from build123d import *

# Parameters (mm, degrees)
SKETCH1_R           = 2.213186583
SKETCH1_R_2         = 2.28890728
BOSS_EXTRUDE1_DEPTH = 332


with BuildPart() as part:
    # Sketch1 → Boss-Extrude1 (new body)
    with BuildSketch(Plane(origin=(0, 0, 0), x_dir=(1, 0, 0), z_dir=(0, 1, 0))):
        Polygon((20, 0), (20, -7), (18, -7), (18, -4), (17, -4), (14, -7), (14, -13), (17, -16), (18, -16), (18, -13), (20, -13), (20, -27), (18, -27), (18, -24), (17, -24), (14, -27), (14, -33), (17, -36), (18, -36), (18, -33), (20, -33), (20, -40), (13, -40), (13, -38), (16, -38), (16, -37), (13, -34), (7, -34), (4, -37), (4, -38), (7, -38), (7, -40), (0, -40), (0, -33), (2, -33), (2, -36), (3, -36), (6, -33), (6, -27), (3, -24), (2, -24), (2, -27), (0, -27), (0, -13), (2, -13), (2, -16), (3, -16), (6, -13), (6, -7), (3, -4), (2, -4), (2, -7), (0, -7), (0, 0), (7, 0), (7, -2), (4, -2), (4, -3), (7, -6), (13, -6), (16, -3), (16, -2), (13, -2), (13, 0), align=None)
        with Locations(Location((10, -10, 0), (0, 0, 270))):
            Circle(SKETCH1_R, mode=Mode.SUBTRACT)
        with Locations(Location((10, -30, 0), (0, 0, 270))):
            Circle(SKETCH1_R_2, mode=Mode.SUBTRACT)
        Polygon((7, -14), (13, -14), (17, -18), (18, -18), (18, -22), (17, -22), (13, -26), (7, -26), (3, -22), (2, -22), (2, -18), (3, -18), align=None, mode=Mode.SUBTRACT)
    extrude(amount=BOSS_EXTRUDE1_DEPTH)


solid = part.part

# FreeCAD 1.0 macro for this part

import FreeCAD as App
import Part
import Sketcher
from FreeCAD import Vector


def add_polygon(sketch, points):
    """Adds a closed chain of lines whose ends are joined by coincident constraints."""
    first, n = sketch.GeometryCount, len(points)
    for a, b in zip(points, points[1:] + points[:1]):
        sketch.addGeometry(Part.LineSegment(App.Vector(*a, 0), App.Vector(*b, 0)), False)
    for i in range(n):
        sketch.addConstraint(Sketcher.Constraint("Coincident", first + i, 2, first + (i + 1) % n, 1))

doc = App.newDocument("Part")
params = doc.addObject("Spreadsheet::Sheet", "Params")
for row, (alias, value) in enumerate([
    ("sketch1_width", "7 mm"),
    ("sketch1_width2", "3 mm"),
    ("sketch1_width3", "6 mm"),
    ("sketch1_width4", "2 mm"),
    ("sketch1_width5", "1 mm"),
    ("pad1_length", "332 mm"),
], start=1):
    params.set(f"A{row}", alias)
    params.set(f"B{row}", "=" + value)
    params.setAlias(f"B{row}", alias)

body = doc.addObject("PartDesign::Body", "Body")

# Sketch on XZ plane
sketch1 = body.newObject("Sketcher::SketchObject", "Sketch")
sketch1.AttachmentSupport = (doc.getObject("XZ_Plane"), [""])
sketch1.MapMode = "FlatFace"
add_polygon(sketch1, [(20, 7), (20, 0), (13, 0), (13, 2), (16, 2), (16, 3), (13, 6), (7, 6), (4, 3), (4, 2), (7, 2), (7, 0), (0, 0), (0, 7), (2, 7), (2, 4), (3, 4), (6, 7), (6, 13), (3, 16), (2, 16), (2, 13), (0, 13), (0, 27), (2, 27), (2, 24), (3, 24), (6, 27), (6, 33), (3, 36), (2, 36), (2, 33), (0, 33), (0, 40), (7, 40), (7, 38), (4, 38), (4, 37), (7, 34), (13, 34), (16, 37), (16, 38), (13, 38), (13, 40), (20, 40), (20, 33), (18, 33), (18, 36), (17, 36), (14, 33), (14, 27), (17, 24), (18, 24), (18, 27), (20, 27), (20, 13), (18, 13), (18, 16), (17, 16), (14, 13), (14, 7), (17, 4), (18, 4), (18, 7)])  # lines 0-63
sketch1.addGeometry(Part.Circle(Vector(10, 30, 0), Vector(0, 0, 1), 2.3), False)  # 64
add_polygon(sketch1, [(7, 14), (13, 14), (17, 18), (18, 18), (18, 22), (17, 22), (13, 26), (7, 26), (3, 22), (2, 22), (2, 18), (3, 18)])  # lines 65-76
sketch1.addGeometry(Part.Circle(Vector(10, 10, 0), Vector(0, 0, 1), 2.2), False)  # 77
sketch1.addConstraint(Sketcher.Constraint("Vertical", 0))
sketch1.addConstraint(Sketcher.Constraint("Horizontal", 1))
sketch1.addConstraint(Sketcher.Constraint("Vertical", 2))
sketch1.addConstraint(Sketcher.Constraint("Horizontal", 3))
sketch1.addConstraint(Sketcher.Constraint("Vertical", 4))
sketch1.addConstraint(Sketcher.Constraint("Horizontal", 6))
sketch1.addConstraint(Sketcher.Constraint("Vertical", 8))
sketch1.addConstraint(Sketcher.Constraint("Horizontal", 9))
sketch1.addConstraint(Sketcher.Constraint("Vertical", 10))
sketch1.addConstraint(Sketcher.Constraint("Horizontal", 11))
sketch1.addConstraint(Sketcher.Constraint("Vertical", 12))
sketch1.addConstraint(Sketcher.Constraint("Horizontal", 13))
sketch1.addConstraint(Sketcher.Constraint("Vertical", 14))
sketch1.addConstraint(Sketcher.Constraint("Horizontal", 15))
sketch1.addConstraint(Sketcher.Constraint("Vertical", 17))
sketch1.addConstraint(Sketcher.Constraint("Horizontal", 19))
sketch1.addConstraint(Sketcher.Constraint("Vertical", 20))
sketch1.addConstraint(Sketcher.Constraint("Horizontal", 21))
sketch1.addConstraint(Sketcher.Constraint("Vertical", 22))
sketch1.addConstraint(Sketcher.Constraint("Horizontal", 23))
sketch1.addConstraint(Sketcher.Constraint("Vertical", 24))
sketch1.addConstraint(Sketcher.Constraint("Horizontal", 25))
sketch1.addConstraint(Sketcher.Constraint("Vertical", 27))
sketch1.addConstraint(Sketcher.Constraint("Horizontal", 29))
sketch1.addConstraint(Sketcher.Constraint("Vertical", 30))
sketch1.addConstraint(Sketcher.Constraint("Horizontal", 31))
sketch1.addConstraint(Sketcher.Constraint("Vertical", 32))
sketch1.addConstraint(Sketcher.Constraint("Horizontal", 33))
sketch1.addConstraint(Sketcher.Constraint("Vertical", 34))
sketch1.addConstraint(Sketcher.Constraint("Horizontal", 35))
sketch1.addConstraint(Sketcher.Constraint("Vertical", 36))
sketch1.addConstraint(Sketcher.Constraint("Horizontal", 38))
sketch1.addConstraint(Sketcher.Constraint("Vertical", 40))
sketch1.addConstraint(Sketcher.Constraint("Horizontal", 41))
sketch1.addConstraint(Sketcher.Constraint("Vertical", 42))
sketch1.addConstraint(Sketcher.Constraint("Horizontal", 43))
sketch1.addConstraint(Sketcher.Constraint("Vertical", 44))
sketch1.addConstraint(Sketcher.Constraint("Horizontal", 45))
sketch1.addConstraint(Sketcher.Constraint("Vertical", 46))
sketch1.addConstraint(Sketcher.Constraint("Horizontal", 47))
sketch1.addConstraint(Sketcher.Constraint("Vertical", 49))
sketch1.addConstraint(Sketcher.Constraint("Horizontal", 51))
sketch1.addConstraint(Sketcher.Constraint("Vertical", 52))
sketch1.addConstraint(Sketcher.Constraint("Horizontal", 53))
sketch1.addConstraint(Sketcher.Constraint("Vertical", 54))
sketch1.addConstraint(Sketcher.Constraint("Horizontal", 55))
sketch1.addConstraint(Sketcher.Constraint("Vertical", 56))
sketch1.addConstraint(Sketcher.Constraint("Horizontal", 57))
sketch1.addConstraint(Sketcher.Constraint("Vertical", 59))
sketch1.addConstraint(Sketcher.Constraint("Horizontal", 61))
sketch1.addConstraint(Sketcher.Constraint("Vertical", 62))
sketch1.addConstraint(Sketcher.Constraint("Horizontal", 63))
sketch1.addConstraint(Sketcher.Constraint("Horizontal", 65))
sketch1.addConstraint(Sketcher.Constraint("Horizontal", 67))
sketch1.addConstraint(Sketcher.Constraint("Vertical", 68))
sketch1.addConstraint(Sketcher.Constraint("Horizontal", 69))
sketch1.addConstraint(Sketcher.Constraint("Horizontal", 71))
sketch1.addConstraint(Sketcher.Constraint("Horizontal", 73))
sketch1.addConstraint(Sketcher.Constraint("Vertical", 74))
sketch1.addConstraint(Sketcher.Constraint("Horizontal", 75))
sketch1.addConstraint(Sketcher.Constraint("Coincident", 11, 2, -1, 1))
sketch1.addConstraint(Sketcher.Constraint("PointOnObject", 0, 2, -1))
sketch1.addConstraint(Sketcher.Constraint("PointOnObject", 21, 2, -2))
sketch1.addConstraint(Sketcher.Constraint("PointOnObject", 31, 2, -2))
sketch1.addConstraint(Sketcher.Constraint("Perpendicular", 5, 7))
sketch1.addConstraint(Sketcher.Constraint("Parallel", 7, 16))
sketch1.addConstraint(Sketcher.Constraint("Perpendicular", 16, 18))
sketch1.addConstraint(Sketcher.Constraint("Perpendicular", 18, 26))
sketch1.addConstraint(Sketcher.Constraint("Perpendicular", 26, 28))
sketch1.addConstraint(Sketcher.Constraint("Parallel", 28, 37))
sketch1.addConstraint(Sketcher.Constraint("Perpendicular", 37, 39))
sketch1.addConstraint(Sketcher.Constraint("Parallel", 39, 48))
sketch1.addConstraint(Sketcher.Constraint("Perpendicular", 48, 50))
sketch1.addConstraint(Sketcher.Constraint("Perpendicular", 50, 58))
sketch1.addConstraint(Sketcher.Constraint("Perpendicular", 58, 60))
sketch1.addConstraint(Sketcher.Constraint("Perpendicular", 60, 66))
sketch1.addConstraint(Sketcher.Constraint("Perpendicular", 66, 70))
sketch1.addConstraint(Sketcher.Constraint("Perpendicular", 70, 72))
sketch1.addConstraint(Sketcher.Constraint("Perpendicular", 72, 76))
sketch1.addConstraint(Sketcher.Constraint("Horizontal", 4, 2, 7, 2))
sketch1.addConstraint(Sketcher.Constraint("Horizontal", 3, 2, 8, 2))
sketch1.addConstraint(Sketcher.Constraint("Horizontal", 13, 2, 16, 2))
sketch1.addConstraint(Sketcher.Constraint("Horizontal", 17, 2, 20, 2))
sketch1.addConstraint(Sketcher.Constraint("Horizontal", 23, 2, 26, 2))
sketch1.addConstraint(Sketcher.Constraint("Horizontal", 27, 2, 30, 2))
sketch1.addConstraint(Sketcher.Constraint("Horizontal", 36, 2, 39, 2))
sketch1.addConstraint(Sketcher.Constraint("Horizontal", 35, 2, 40, 2))
sketch1.addConstraint(Sketcher.Constraint("Horizontal", 33, 2, 42, 2))
sketch1.addConstraint(Sketcher.Constraint("Horizontal", 31, 2, 44, 2))
sketch1.addConstraint(Sketcher.Constraint("Horizontal", 29, 2, 46, 2))
sketch1.addConstraint(Sketcher.Constraint("Horizontal", 45, 2, 48, 2))
sketch1.addConstraint(Sketcher.Constraint("Horizontal", 26, 2, 49, 2))
sketch1.addConstraint(Sketcher.Constraint("Horizontal", 25, 2, 50, 2))
sketch1.addConstraint(Sketcher.Constraint("Horizontal", 49, 2, 52, 2))
sketch1.addConstraint(Sketcher.Constraint("Horizontal", 21, 2, 54, 2))
sketch1.addConstraint(Sketcher.Constraint("Horizontal", 19, 2, 56, 2))
sketch1.addConstraint(Sketcher.Constraint("Horizontal", 55, 2, 58, 2))
sketch1.addConstraint(Sketcher.Constraint("Horizontal", 16, 2, 59, 2))
sketch1.addConstraint(Sketcher.Constraint("Horizontal", 15, 2, 60, 2))
sketch1.addConstraint(Sketcher.Constraint("Horizontal", 59, 2, 62, 2))
sketch1.addConstraint(Sketcher.Constraint("Horizontal", 69, 2, 72, 2))
sketch1.addConstraint(Sketcher.Constraint("Horizontal", 67, 2, 74, 2))
sketch1.addConstraint(Sketcher.Constraint("Vertical", 64, 3, 77, 3))
sketch1.addConstraint(Sketcher.Constraint("Vertical", 2, 2, 5, 2))
sketch1.addConstraint(Sketcher.Constraint("Vertical", 6, 2, 9, 2))
sketch1.addConstraint(Sketcher.Constraint("Vertical", 15, 2, 18, 2))
sketch1.addConstraint(Sketcher.Constraint("Vertical", 14, 2, 19, 2))
sketch1.addConstraint(Sketcher.Constraint("Vertical", 20, 2, 23, 2))
sketch1.addConstraint(Sketcher.Constraint("Vertical", 18, 2, 25, 2))
sketch1.addConstraint(Sketcher.Constraint("Vertical", 17, 2, 26, 2))
sketch1.addConstraint(Sketcher.Constraint("Vertical", 25, 2, 28, 2))
sketch1.addConstraint(Sketcher.Constraint("Vertical", 24, 2, 29, 2))
sketch1.addConstraint(Sketcher.Constraint("Vertical", 10, 2, 33, 2))
sketch1.addConstraint(Sketcher.Constraint("Vertical", 8, 2, 35, 2))
sketch1.addConstraint(Sketcher.Constraint("Vertical", 34, 2, 37, 2))
sketch1.addConstraint(Sketcher.Constraint("Vertical", 5, 2, 38, 2))
sketch1.addConstraint(Sketcher.Constraint("Vertical", 4, 2, 39, 2))
sketch1.addConstraint(Sketcher.Constraint("Vertical", 38, 2, 41, 2))
sketch1.addConstraint(Sketcher.Constraint("Vertical", 0, 2, 43, 2))
sketch1.addConstraint(Sketcher.Constraint("Vertical", 46, 2, 51, 2))
sketch1.addConstraint(Sketcher.Constraint("Vertical", 44, 2, 53, 2))
sketch1.addConstraint(Sketcher.Constraint("Vertical", 52, 2, 55, 2))
sketch1.addConstraint(Sketcher.Constraint("Vertical", 50, 2, 57, 2))
sketch1.addConstraint(Sketcher.Constraint("Vertical", 56, 2, 61, 2))
sketch1.addConstraint(Sketcher.Constraint("Vertical", 42, 2, 65, 2))
sketch1.addConstraint(Sketcher.Constraint("Vertical", 60, 2, 66, 2))
sketch1.addConstraint(Sketcher.Constraint("Vertical", 62, 2, 67, 2))
sketch1.addConstraint(Sketcher.Constraint("Vertical", 66, 2, 69, 2))
sketch1.addConstraint(Sketcher.Constraint("Vertical", 65, 2, 70, 2))
sketch1.addConstraint(Sketcher.Constraint("Vertical", 37, 2, 71, 2))
sketch1.addConstraint(Sketcher.Constraint("Vertical", 28, 2, 72, 2))
sketch1.addConstraint(Sketcher.Constraint("Vertical", 30, 2, 73, 2))
sketch1.addConstraint(Sketcher.Constraint("Vertical", 72, 2, 75, 2))
sketch1.addConstraint(Sketcher.Constraint("Equal", 1, 11))
sketch1.addConstraint(Sketcher.Constraint("Equal", 31, 45))
sketch1.addConstraint(Sketcher.Constraint("Equal", 43, 0))
sketch1.addConstraint(Sketcher.Constraint("Equal", 63, 2))
sketch1.addConstraint(Sketcher.Constraint("Equal", 75, 4))
sketch1.addConstraint(Sketcher.Constraint("Equal", 41, 14))
sketch1.addConstraint(Sketcher.Constraint("Equal", 71, 17))
sketch1.addConstraint(Sketcher.Constraint("Equal", 17, 27))
sketch1.addConstraint(Sketcher.Constraint("Equal", 12, 32))
sketch1.addConstraint(Sketcher.Constraint("Equal", 10, 34))
sketch1.addConstraint(Sketcher.Constraint("Equal", 8, 36))
sketch1.addConstraint(Sketcher.Constraint("DistanceX", 1, 2, 1, 1, 7.0))
sketch1.addConstraint(Sketcher.Constraint("DistanceX", 3, 1, 3, 2, 3.0))
sketch1.addConstraint(Sketcher.Constraint("DistanceX", 6, 2, 6, 1, 6.0))
sketch1.addConstraint(Sketcher.Constraint("DistanceX", 13, 1, 13, 2, 2.0))
sketch1.addConstraint(Sketcher.Constraint("DistanceX", 15, 1, 15, 2, 1.0))
sketch1.addConstraint(Sketcher.Constraint("DistanceY", 22, 1, 22, 2, 14.0))
sketch1.addConstraint(Sketcher.Constraint("DistanceY", 68, 1, 68, 2, 4.0))
sketch1.addConstraint(Sketcher.Constraint("DistanceX", -1, 1, 64, 3, 10.0))
sketch1.addConstraint(Sketcher.Constraint("DistanceY", -1, 1, 64, 3, 30.0))
sketch1.addConstraint(Sketcher.Constraint("DistanceY", -1, 1, 77, 3, 10.0))
sketch1.addConstraint(Sketcher.Constraint("DistanceY", -1, 1, 65, 2, 14.0))
sketch1.addConstraint(Sketcher.Constraint("Diameter", 64, 4.577815))
sketch1.addConstraint(Sketcher.Constraint("Diameter", 77, 4.426373))
sketch1.setExpression("Constraints[220]", "Params.sketch1_width")
sketch1.setExpression("Constraints[221]", "Params.sketch1_width2")
sketch1.setExpression("Constraints[222]", "Params.sketch1_width3")
sketch1.setExpression("Constraints[223]", "Params.sketch1_width4")
sketch1.setExpression("Constraints[224]", "Params.sketch1_width5")
pad1 = body.newObject("PartDesign::Pad", "Pad")
pad1.Profile = sketch1
pad1.setExpression("Length", "Params.pad1_length")
pad1.Reversed = True

doc.recompute()
